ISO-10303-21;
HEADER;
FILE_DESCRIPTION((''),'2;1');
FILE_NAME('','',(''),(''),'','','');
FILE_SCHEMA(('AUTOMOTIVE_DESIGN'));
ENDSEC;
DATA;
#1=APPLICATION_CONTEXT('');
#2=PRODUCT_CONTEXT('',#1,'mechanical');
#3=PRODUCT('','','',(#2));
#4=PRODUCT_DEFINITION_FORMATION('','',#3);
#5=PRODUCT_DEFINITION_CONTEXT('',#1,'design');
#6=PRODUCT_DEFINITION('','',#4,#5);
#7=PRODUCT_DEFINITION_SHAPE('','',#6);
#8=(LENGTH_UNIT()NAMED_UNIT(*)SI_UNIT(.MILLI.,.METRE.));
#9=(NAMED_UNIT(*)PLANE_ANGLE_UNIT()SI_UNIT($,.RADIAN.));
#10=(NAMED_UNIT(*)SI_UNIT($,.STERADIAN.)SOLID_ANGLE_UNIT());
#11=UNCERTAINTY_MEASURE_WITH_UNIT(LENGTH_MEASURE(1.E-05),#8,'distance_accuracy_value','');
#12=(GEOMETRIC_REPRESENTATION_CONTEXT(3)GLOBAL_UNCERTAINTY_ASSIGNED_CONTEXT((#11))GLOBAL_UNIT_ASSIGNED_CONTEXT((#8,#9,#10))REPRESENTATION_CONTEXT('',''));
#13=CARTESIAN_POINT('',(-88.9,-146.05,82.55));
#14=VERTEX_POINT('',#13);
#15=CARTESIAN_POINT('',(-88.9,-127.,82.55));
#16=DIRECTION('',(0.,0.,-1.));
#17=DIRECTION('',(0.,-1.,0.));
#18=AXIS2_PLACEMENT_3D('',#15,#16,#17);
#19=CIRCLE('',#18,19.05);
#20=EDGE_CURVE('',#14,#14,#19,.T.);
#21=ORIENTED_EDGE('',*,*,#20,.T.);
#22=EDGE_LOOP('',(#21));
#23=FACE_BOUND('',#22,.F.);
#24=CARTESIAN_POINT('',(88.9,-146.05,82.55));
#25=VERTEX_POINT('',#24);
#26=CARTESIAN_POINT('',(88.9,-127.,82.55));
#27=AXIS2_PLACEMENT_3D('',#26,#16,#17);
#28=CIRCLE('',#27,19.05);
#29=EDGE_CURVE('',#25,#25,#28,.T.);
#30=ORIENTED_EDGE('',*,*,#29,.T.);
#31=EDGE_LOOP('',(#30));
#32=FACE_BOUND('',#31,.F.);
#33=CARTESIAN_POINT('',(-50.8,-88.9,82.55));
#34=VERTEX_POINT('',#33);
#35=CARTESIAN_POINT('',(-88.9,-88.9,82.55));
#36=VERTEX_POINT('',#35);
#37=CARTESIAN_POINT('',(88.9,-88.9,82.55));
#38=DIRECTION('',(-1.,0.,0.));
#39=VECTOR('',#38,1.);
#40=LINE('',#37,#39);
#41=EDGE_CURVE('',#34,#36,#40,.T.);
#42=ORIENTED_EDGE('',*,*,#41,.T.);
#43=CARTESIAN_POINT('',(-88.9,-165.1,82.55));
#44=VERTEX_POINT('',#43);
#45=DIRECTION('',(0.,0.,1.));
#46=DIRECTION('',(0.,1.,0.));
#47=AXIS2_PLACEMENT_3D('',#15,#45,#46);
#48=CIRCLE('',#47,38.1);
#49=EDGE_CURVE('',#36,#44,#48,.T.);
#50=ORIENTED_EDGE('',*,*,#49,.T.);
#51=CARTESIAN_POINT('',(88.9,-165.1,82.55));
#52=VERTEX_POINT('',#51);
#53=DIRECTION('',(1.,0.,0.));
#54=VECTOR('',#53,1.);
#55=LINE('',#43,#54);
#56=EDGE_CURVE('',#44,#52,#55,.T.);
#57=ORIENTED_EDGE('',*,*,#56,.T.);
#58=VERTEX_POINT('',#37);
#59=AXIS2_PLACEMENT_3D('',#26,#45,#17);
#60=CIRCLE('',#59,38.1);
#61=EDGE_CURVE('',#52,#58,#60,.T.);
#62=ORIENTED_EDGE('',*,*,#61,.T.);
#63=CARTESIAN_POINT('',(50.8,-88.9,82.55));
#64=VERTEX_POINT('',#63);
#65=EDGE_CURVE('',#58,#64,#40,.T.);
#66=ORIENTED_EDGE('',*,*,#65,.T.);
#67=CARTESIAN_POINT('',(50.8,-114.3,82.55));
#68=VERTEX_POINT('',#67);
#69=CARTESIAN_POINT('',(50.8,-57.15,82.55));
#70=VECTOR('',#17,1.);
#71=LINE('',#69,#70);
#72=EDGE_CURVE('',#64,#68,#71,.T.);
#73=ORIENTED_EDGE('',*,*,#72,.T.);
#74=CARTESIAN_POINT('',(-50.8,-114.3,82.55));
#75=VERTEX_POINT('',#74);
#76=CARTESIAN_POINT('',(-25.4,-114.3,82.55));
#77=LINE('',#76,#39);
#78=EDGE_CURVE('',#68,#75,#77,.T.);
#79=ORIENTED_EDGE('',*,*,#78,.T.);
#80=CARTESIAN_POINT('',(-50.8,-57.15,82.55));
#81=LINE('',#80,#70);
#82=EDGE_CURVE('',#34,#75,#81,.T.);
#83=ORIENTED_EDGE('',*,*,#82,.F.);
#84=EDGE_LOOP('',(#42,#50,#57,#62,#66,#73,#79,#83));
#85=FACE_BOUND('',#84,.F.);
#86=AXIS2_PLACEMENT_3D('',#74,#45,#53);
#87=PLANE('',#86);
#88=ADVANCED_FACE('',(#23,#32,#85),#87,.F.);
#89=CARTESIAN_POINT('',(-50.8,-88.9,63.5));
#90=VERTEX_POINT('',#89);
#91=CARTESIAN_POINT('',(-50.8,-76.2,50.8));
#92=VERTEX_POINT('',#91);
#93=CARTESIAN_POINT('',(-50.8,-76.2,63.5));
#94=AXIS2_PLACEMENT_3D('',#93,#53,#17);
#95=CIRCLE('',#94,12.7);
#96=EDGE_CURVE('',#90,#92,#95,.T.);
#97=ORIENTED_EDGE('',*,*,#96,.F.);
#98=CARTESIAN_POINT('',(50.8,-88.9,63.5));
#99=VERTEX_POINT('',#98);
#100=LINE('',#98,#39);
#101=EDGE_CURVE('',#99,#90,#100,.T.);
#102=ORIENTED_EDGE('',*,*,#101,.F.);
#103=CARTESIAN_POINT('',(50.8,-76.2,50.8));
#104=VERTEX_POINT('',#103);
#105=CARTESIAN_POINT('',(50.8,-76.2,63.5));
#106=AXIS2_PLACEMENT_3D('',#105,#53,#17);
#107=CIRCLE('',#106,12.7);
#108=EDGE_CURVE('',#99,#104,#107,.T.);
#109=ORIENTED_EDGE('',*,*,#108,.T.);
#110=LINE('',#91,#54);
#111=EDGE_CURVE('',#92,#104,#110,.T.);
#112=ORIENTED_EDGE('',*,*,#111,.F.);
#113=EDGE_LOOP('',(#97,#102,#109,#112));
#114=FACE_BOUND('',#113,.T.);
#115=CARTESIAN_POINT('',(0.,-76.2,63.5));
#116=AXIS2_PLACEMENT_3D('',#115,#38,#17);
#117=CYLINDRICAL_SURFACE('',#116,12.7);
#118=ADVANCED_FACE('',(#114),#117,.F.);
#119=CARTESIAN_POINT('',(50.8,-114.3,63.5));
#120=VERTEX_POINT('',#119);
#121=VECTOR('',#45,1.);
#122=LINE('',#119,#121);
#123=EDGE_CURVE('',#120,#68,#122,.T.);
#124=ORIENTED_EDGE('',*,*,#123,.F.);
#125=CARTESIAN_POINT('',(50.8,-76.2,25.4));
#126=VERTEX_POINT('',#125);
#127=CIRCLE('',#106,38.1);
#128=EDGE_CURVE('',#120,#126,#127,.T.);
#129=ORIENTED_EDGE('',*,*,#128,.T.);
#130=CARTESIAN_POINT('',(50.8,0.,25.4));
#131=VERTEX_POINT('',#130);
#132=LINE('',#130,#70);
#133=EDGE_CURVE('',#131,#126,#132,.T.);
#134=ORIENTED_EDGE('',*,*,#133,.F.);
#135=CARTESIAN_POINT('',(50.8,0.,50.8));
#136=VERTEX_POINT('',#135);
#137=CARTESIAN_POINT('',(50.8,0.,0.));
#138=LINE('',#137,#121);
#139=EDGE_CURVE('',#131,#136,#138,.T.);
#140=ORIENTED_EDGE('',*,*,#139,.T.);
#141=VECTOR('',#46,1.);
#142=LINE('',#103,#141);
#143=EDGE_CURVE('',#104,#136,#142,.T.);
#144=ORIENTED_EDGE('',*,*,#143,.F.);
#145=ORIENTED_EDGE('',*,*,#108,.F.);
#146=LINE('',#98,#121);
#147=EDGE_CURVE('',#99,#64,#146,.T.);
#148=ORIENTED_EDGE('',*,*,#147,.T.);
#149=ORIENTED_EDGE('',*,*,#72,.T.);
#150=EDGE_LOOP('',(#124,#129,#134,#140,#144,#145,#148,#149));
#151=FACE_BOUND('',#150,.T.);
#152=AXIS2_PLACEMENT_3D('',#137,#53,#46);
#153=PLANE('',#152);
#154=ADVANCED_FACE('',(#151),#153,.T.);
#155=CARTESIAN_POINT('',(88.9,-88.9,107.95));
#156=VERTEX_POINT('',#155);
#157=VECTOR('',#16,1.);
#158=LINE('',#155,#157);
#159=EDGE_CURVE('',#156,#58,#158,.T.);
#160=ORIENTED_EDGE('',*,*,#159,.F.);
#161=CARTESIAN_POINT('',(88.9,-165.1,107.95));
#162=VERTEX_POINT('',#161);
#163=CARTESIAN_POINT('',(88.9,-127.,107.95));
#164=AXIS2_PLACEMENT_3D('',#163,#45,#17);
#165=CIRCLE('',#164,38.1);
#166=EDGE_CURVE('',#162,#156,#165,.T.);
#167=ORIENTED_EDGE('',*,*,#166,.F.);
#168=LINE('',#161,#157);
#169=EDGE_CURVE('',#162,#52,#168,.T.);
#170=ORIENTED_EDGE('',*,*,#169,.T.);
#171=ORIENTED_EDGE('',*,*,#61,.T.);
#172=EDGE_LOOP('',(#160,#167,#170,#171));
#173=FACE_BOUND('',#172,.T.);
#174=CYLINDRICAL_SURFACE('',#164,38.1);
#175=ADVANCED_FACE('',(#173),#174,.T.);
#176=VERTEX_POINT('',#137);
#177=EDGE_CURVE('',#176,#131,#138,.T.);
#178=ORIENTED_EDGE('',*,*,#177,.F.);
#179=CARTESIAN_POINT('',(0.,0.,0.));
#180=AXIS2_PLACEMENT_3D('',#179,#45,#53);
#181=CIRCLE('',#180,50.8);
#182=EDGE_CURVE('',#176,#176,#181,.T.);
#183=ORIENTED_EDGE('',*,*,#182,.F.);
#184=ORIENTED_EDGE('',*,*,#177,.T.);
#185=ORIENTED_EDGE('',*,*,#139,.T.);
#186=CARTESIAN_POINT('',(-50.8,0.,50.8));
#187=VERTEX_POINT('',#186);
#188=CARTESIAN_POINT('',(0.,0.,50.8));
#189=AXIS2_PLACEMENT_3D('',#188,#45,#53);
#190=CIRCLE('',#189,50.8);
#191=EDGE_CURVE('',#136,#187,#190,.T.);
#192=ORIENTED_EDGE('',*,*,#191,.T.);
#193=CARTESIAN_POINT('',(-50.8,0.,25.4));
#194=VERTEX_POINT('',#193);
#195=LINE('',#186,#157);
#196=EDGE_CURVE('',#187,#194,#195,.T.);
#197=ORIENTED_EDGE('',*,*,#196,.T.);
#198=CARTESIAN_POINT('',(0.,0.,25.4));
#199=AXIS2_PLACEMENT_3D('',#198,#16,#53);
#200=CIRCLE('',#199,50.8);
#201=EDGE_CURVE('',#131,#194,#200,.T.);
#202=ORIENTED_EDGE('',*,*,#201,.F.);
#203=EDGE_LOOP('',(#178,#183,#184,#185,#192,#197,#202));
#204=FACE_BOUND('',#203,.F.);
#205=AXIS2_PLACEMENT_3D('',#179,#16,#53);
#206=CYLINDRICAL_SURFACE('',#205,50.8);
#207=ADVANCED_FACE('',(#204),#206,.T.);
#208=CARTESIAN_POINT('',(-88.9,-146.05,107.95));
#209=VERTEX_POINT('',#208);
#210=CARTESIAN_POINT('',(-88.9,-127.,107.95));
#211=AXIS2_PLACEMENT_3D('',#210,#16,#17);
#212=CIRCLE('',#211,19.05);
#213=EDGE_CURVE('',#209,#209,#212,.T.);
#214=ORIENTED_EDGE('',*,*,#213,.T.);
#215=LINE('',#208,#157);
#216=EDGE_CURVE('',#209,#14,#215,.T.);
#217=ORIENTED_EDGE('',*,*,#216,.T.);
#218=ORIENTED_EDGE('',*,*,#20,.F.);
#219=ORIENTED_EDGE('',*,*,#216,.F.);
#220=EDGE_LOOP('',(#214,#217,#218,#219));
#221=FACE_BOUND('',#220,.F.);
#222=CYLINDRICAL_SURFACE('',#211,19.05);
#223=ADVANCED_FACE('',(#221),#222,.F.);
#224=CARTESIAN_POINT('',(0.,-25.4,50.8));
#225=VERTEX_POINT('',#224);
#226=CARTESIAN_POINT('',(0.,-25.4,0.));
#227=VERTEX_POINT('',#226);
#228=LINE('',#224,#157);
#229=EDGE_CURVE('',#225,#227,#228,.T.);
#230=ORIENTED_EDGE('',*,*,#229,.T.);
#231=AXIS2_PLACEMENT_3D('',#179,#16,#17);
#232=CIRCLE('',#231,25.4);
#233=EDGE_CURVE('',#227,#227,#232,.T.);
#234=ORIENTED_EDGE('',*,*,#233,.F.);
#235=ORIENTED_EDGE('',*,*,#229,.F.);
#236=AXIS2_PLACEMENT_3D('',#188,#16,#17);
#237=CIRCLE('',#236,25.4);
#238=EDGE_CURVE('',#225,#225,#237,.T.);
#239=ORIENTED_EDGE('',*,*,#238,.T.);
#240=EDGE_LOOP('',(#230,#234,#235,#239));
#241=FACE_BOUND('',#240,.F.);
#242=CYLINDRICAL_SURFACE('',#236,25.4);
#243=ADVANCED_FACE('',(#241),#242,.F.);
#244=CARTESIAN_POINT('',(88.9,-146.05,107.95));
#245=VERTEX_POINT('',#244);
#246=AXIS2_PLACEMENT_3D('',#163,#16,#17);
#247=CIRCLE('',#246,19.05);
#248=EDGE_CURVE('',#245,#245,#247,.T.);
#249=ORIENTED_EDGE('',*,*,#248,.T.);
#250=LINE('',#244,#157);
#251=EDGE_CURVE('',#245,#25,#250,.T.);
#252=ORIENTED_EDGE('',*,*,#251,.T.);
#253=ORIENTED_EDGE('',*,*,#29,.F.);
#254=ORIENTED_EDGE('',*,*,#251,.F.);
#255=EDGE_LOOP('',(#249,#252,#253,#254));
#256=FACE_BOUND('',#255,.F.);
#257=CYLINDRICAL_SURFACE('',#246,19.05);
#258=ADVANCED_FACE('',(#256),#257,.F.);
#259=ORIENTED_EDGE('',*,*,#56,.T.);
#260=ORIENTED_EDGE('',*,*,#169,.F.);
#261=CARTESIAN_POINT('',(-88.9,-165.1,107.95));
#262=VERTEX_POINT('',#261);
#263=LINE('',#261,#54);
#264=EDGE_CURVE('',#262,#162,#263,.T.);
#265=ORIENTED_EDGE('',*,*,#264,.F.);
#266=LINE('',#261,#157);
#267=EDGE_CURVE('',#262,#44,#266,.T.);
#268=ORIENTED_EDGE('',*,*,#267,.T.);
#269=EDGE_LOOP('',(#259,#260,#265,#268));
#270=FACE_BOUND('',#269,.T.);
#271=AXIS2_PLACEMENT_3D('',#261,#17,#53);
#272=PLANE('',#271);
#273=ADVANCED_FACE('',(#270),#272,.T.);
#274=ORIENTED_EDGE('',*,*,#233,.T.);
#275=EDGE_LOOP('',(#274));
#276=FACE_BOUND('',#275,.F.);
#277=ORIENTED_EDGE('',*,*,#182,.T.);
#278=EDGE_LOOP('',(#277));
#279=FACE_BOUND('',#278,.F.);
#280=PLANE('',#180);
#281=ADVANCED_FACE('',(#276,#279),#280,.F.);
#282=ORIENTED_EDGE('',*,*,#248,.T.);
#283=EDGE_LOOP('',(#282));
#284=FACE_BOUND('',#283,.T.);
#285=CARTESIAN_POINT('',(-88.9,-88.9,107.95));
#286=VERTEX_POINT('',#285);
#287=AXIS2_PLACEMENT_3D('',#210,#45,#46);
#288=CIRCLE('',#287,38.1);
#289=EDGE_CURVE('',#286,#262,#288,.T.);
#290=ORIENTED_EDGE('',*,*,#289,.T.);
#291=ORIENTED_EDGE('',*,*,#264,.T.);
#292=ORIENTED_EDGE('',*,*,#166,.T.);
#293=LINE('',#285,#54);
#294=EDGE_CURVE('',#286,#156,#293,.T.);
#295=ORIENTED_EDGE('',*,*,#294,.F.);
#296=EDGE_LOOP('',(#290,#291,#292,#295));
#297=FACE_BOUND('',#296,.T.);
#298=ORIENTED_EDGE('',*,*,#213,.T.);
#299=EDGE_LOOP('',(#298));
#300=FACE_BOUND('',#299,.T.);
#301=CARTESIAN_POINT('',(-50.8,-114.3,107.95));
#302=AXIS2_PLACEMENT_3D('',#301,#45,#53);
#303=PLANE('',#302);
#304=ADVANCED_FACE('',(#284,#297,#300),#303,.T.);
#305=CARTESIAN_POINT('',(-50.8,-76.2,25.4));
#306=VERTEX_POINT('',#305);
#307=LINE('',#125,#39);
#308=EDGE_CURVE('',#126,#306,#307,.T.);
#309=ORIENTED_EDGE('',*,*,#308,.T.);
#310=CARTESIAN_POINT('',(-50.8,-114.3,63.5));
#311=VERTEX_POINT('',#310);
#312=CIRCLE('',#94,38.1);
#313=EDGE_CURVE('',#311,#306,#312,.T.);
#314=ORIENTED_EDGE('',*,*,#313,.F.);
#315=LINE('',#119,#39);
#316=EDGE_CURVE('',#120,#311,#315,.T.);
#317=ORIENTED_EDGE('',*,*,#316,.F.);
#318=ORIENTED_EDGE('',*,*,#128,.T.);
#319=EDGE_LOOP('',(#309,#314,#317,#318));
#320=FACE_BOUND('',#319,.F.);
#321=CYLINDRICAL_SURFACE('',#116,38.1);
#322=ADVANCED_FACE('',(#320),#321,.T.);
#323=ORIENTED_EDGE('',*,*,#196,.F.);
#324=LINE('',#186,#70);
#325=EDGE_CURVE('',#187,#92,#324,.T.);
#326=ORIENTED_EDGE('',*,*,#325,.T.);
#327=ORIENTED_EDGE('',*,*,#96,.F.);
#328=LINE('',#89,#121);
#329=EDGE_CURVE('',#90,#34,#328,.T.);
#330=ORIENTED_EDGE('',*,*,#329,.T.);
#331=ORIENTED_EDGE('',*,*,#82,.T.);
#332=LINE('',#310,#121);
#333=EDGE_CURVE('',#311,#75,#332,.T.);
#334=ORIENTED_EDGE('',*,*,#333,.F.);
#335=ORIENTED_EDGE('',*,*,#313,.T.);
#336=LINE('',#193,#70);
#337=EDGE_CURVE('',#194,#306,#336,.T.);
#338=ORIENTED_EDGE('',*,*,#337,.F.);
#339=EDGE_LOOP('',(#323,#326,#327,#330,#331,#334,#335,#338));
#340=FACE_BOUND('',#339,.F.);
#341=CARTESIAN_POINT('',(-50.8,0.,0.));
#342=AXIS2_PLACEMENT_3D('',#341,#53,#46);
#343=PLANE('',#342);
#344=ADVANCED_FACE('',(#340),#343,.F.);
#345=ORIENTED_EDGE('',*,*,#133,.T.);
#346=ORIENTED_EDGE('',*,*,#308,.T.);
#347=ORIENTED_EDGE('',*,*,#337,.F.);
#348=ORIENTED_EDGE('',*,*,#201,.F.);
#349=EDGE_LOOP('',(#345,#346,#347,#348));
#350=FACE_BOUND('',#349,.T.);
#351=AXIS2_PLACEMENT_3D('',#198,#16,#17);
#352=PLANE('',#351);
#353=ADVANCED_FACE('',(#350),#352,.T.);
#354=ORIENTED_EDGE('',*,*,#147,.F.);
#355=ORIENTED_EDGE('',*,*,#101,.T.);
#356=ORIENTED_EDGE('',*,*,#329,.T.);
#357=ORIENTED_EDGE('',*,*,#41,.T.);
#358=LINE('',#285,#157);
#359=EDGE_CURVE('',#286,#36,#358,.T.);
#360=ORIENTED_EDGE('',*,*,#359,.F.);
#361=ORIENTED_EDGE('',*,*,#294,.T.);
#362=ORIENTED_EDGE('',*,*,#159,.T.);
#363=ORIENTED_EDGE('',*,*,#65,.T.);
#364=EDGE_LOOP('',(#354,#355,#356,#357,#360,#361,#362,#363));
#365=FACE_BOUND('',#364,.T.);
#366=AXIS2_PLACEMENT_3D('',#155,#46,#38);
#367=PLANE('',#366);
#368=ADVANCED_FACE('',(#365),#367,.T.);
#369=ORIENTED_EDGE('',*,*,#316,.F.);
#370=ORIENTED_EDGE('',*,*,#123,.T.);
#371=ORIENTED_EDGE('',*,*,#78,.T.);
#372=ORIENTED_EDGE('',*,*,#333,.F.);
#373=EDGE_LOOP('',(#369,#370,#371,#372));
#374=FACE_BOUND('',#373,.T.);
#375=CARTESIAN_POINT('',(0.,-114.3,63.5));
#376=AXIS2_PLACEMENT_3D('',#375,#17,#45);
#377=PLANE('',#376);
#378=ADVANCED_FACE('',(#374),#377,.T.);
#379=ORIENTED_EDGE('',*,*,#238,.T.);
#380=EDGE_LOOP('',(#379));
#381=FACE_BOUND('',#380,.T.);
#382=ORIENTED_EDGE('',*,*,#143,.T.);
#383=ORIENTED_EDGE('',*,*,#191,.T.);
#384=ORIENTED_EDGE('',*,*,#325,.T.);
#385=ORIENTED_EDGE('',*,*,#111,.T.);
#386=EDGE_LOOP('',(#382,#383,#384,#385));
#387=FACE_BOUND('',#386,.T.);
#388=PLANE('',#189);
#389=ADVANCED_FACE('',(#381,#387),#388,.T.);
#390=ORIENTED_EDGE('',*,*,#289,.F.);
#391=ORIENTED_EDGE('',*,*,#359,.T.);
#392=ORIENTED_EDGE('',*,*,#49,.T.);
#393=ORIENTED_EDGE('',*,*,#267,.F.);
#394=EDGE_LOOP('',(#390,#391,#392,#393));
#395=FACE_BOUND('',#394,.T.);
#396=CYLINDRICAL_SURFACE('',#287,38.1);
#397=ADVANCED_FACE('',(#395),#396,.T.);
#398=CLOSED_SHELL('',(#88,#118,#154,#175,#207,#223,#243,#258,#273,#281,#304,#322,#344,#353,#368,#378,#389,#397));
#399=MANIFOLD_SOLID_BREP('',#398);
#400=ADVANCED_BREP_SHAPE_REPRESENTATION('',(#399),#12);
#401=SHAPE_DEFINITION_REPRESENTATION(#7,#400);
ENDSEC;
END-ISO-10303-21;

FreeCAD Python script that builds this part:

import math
import FreeCAD as App
import Part
import Sketcher
Q = App.Units.Quantity

doc = App.newDocument("Part")
body = doc.addObject("PartDesign::Body", "Body")

sketch1 = body.newObject("Sketcher::SketchObject", "Sketch")
sketch1.AttachmentSupport = (doc.getObject("XY_Plane"), [""])
sketch1.MapMode = "FlatFace"
sketch1.addGeometry(Part.Circle(App.Vector(0, 0, 0), App.Vector(0, 0, 1), 50.8), False)
sketch1.addConstraint(Sketcher.Constraint("Coincident", 0, 3, -1, 1))
sketch1.addConstraint(Sketcher.Constraint("Diameter", 0, Q("4 in")))
pad1 = body.newObject("PartDesign::Pad", "Pad")
pad1.Profile = sketch1
pad1.Length = Q("2 in")

sketch2 = body.newObject("Sketcher::SketchObject", "Sketch001")
sketch2.AttachmentSupport = (doc.getObject("YZ_Plane"), [""])
sketch2.MapMode = "FlatFace"
sketch2.addGeometry(Part.LineSegment(App.Vector(0, 25.4, 0), App.Vector(0, 50.8, 0)), False)
sketch2.addGeometry(Part.LineSegment(App.Vector(0, 50.8, 0), App.Vector(-76.2, 50.8, 0)), False)
sketch2.addGeometry(Part.ArcOfCircle(Part.Circle(App.Vector(-76.2, 63.5, 0), App.Vector(0, 0, 1), 12.7), math.radians(180), math.radians(270)), False)
sketch2.addGeometry(Part.LineSegment(App.Vector(-88.9, 63.5, 0), App.Vector(-88.9, 107.95, 0)), False)
sketch2.addGeometry(Part.LineSegment(App.Vector(-88.9, 107.95, 0), App.Vector(-114.3, 107.95, 0)), False)
sketch2.addGeometry(Part.LineSegment(App.Vector(-114.3, 107.95, 0), App.Vector(-114.3, 63.5, 0)), False)
sketch2.addGeometry(Part.ArcOfCircle(Part.Circle(App.Vector(-76.2, 63.5, 0), App.Vector(0, 0, 1), 38.1), math.radians(180), math.radians(270)), False)
sketch2.addGeometry(Part.LineSegment(App.Vector(-76.2, 25.4, 0), App.Vector(0, 25.4, 0)), False)
sketch2.addConstraint(Sketcher.Constraint("Coincident", 0, 2, 1, 1))
sketch2.addConstraint(Sketcher.Constraint("Tangent", 1, 2, 2, 2))
sketch2.addConstraint(Sketcher.Constraint("Tangent", 2, 1, 3, 1))
sketch2.addConstraint(Sketcher.Constraint("Coincident", 3, 2, 4, 1))
sketch2.addConstraint(Sketcher.Constraint("Coincident", 4, 2, 5, 1))
sketch2.addConstraint(Sketcher.Constraint("Tangent", 5, 2, 6, 1))
sketch2.addConstraint(Sketcher.Constraint("Tangent", 6, 2, 7, 1))
sketch2.addConstraint(Sketcher.Constraint("Coincident", 7, 2, 0, 1))
sketch2.addConstraint(Sketcher.Constraint("Vertical", 0))
sketch2.addConstraint(Sketcher.Constraint("Horizontal", 1))
sketch2.addConstraint(Sketcher.Constraint("Vertical", 3))
sketch2.addConstraint(Sketcher.Constraint("Horizontal", 4))
sketch2.addConstraint(Sketcher.Constraint("Vertical", 5))
sketch2.addConstraint(Sketcher.Constraint("Horizontal", 7))
sketch2.addConstraint(Sketcher.Constraint("Coincident", 6, 3, 2, 3))
sketch2.addConstraint(Sketcher.Constraint("PointOnObject", 0, 2, -2))
sketch2.addConstraint(Sketcher.Constraint("Radius", 2, Q("0.5 in")))
sketch2.addConstraint(Sketcher.Constraint("Radius", 6, Q("1.5 in")))
sketch2.addConstraint(Sketcher.Constraint("DistanceY", -1, 1, 6, 2, Q("1 in")))
sketch2.addConstraint(Sketcher.Constraint("DistanceX", 1, 2, 1, 1, Q("3 in")))
sketch2.addConstraint(Sketcher.Constraint("DistanceY", 1, 2, 3, 2, Q("2.25 in")))
pad2 = body.newObject("PartDesign::Pad", "Pad001")
pad2.Profile = sketch2
pad2.Length = Q("4 in")
pad2.Midplane = True

sketch3 = body.newObject("Sketcher::SketchObject", "Sketch002")
sketch3.AttachmentSupport = (doc.getObject("XY_Plane"), [""])
sketch3.MapMode = "FlatFace"
sketch3.AttachmentOffset = App.Placement(App.Vector(0, 0, 4.25 * 25.4), App.Rotation())
sketch3.addGeometry(Part.ArcOfCircle(Part.Circle(App.Vector(-88.9, -127, 0), App.Vector(0, 0, 1), 38.1), math.radians(90), math.radians(270)), False)
sketch3.addGeometry(Part.LineSegment(App.Vector(-88.9, -165.1, 0), App.Vector(88.9, -165.1, 0)), False)
sketch3.addGeometry(Part.ArcOfCircle(Part.Circle(App.Vector(88.9, -127, 0), App.Vector(0, 0, 1), 38.1), math.radians(-90), math.radians(90)), False)
sketch3.addGeometry(Part.LineSegment(App.Vector(88.9, -88.9, 0), App.Vector(-88.9, -88.9, 0)), False)
sketch3.addConstraint(Sketcher.Constraint("Tangent", 0, 2, 1, 1))
sketch3.addConstraint(Sketcher.Constraint("Tangent", 1, 2, 2, 1))
sketch3.addConstraint(Sketcher.Constraint("Tangent", 2, 2, 3, 1))
sketch3.addConstraint(Sketcher.Constraint("Tangent", 3, 2, 0, 1))
sketch3.addConstraint(Sketcher.Constraint("Horizontal", 1))
sketch3.addConstraint(Sketcher.Constraint("Horizontal", 3))
sketch3.addConstraint(Sketcher.Constraint("Radius", 0, Q("1.5 in")))
sketch3.addConstraint(Sketcher.Constraint("DistanceX", 1, 1, 1, 2, Q("7 in")))
sketch3.addConstraint(Sketcher.Constraint("DistanceY", 0, 3, -1, 1, Q("5 in")))
sketch3.addConstraint(Sketcher.Constraint("DistanceX", 0, 3, -1, 1, Q("3.5 in")))
pad3 = body.newObject("PartDesign::Pad", "Pad002")
pad3.Profile = sketch3
pad3.Length = Q("1 in")
pad3.Reversed = True

sketch4 = body.newObject("Sketcher::SketchObject", "Sketch003")
sketch4.AttachmentSupport = (doc.getObject("XY_Plane"), [""])
sketch4.MapMode = "FlatFace"
sketch4.AttachmentOffset = App.Placement(App.Vector(0, 0, 4.25 * 25.4), App.Rotation())
sketch4.addGeometry(Part.Circle(App.Vector(-88.9, -127, 0), App.Vector(0, 0, 1), 19.05), False)
sketch4.addGeometry(Part.Circle(App.Vector(88.9, -127, 0), App.Vector(0, 0, 1), 19.05), False)
sketch4.addConstraint(Sketcher.Constraint("Equal", 0, 1))
sketch4.addConstraint(Sketcher.Constraint("Symmetric", 0, 3, 1, 3, -2))
sketch4.addConstraint(Sketcher.Constraint("Diameter", 0, Q("1.5 in")))
sketch4.addConstraint(Sketcher.Constraint("DistanceY", 0, 3, -1, 1, Q("5 in")))
sketch4.addConstraint(Sketcher.Constraint("DistanceX", 0, 3, 1, 3, Q("7 in")))
doc.recompute()
hole = body.newObject("PartDesign::Hole", "Hole")
hole.Profile = sketch4
hole.ThreadType = "None"
hole.Diameter = Q("1.5 in")
hole.DepthType = "ThroughAll"

sketch5 = body.newObject("Sketcher::SketchObject", "Sketch004")
sketch5.AttachmentSupport = (doc.getObject("XY_Plane"), [""])
sketch5.MapMode = "FlatFace"
sketch5.AttachmentOffset = App.Placement(App.Vector(0, 0, 2 * 25.4), App.Rotation())
sketch5.addGeometry(Part.Circle(App.Vector(0, 0, 0), App.Vector(0, 0, 1), 25.4), False)
sketch5.addConstraint(Sketcher.Constraint("Coincident", 0, 3, -1, 1))
sketch5.addConstraint(Sketcher.Constraint("Diameter", 0, Q("2 in")))
doc.recompute()
hole2 = body.newObject("PartDesign::Hole", "Hole001")
hole2.Profile = sketch5
hole2.ThreadType = "None"
hole2.Diameter = Q("2 in")
hole2.DepthType = "ThroughAll"

doc.recompute()
